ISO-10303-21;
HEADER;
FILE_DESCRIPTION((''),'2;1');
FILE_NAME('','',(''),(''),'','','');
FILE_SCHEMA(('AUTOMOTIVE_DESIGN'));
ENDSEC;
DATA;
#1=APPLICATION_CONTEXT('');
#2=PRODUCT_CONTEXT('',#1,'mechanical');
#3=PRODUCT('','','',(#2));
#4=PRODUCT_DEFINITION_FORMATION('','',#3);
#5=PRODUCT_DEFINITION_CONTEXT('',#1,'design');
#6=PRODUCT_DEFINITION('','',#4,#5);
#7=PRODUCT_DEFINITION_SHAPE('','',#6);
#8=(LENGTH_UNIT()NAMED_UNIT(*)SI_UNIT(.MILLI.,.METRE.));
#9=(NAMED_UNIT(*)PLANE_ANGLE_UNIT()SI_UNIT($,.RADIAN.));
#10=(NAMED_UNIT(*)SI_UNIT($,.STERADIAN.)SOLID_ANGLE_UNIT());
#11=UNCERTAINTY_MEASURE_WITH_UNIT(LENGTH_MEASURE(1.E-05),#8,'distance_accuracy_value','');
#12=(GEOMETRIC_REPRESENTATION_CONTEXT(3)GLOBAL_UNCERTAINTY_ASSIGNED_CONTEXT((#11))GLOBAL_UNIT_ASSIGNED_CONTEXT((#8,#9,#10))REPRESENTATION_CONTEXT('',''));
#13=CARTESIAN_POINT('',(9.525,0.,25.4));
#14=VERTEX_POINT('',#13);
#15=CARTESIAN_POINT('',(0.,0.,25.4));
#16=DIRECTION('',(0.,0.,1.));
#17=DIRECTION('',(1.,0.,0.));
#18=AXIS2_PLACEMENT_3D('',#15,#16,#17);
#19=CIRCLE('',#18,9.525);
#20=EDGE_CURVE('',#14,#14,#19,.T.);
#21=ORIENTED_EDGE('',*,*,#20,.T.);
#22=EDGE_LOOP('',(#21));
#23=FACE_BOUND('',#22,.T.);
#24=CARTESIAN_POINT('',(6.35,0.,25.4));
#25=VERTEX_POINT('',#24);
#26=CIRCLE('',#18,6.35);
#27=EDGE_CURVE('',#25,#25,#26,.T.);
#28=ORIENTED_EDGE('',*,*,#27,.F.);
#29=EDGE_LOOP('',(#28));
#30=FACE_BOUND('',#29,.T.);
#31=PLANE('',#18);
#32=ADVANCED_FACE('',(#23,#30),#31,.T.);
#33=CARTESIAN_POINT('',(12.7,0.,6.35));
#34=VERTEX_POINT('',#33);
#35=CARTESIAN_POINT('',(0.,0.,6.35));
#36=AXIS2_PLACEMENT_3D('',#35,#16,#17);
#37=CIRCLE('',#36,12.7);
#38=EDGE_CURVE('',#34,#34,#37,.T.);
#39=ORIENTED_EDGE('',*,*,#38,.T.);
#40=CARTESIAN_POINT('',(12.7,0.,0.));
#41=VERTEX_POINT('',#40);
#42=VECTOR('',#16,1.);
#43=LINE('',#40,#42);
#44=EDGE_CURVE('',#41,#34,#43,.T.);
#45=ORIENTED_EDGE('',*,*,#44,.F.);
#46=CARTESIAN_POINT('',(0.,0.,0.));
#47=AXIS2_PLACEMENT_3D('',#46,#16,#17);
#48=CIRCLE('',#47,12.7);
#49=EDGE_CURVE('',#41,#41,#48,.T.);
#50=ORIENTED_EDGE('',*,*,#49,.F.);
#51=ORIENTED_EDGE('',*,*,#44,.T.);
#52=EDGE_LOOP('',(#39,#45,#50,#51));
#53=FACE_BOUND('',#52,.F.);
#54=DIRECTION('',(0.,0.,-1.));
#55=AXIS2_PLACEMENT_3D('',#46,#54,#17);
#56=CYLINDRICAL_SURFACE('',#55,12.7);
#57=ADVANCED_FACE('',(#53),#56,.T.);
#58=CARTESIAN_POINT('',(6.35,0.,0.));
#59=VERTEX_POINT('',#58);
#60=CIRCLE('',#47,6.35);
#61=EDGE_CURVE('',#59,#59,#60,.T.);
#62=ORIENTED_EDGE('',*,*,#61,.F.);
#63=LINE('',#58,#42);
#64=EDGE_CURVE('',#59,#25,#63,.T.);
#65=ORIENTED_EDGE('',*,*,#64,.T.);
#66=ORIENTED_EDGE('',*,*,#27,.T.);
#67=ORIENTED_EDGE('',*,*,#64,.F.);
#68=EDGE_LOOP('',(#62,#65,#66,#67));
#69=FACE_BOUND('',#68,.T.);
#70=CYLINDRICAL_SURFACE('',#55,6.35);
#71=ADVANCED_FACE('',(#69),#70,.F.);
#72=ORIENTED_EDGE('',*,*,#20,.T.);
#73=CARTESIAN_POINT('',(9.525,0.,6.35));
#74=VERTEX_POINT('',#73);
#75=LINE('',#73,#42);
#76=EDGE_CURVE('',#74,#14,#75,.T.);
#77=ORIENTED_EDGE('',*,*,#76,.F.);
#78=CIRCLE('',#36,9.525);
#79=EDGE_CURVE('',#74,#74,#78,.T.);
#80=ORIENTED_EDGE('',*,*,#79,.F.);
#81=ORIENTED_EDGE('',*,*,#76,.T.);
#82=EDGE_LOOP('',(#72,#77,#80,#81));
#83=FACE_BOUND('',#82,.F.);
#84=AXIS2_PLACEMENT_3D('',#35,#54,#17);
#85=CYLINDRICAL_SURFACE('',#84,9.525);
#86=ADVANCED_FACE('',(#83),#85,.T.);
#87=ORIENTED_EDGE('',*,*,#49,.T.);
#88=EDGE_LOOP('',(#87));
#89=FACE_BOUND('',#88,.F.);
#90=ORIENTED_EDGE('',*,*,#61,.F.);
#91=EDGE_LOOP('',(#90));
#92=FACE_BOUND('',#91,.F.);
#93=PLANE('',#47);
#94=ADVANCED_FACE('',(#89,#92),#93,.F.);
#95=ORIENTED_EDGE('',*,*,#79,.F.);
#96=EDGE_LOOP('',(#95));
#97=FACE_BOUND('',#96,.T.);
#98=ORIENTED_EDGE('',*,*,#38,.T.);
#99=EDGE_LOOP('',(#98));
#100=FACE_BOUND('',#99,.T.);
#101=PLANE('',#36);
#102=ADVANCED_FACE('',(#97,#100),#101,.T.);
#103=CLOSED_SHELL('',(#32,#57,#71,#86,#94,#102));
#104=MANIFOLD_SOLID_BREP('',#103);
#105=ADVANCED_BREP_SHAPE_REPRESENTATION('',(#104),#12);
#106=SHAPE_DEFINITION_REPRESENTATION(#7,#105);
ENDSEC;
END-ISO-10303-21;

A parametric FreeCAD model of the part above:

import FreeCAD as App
import Part
import Sketcher
from FreeCAD import Vector
Q = App.Units.Quantity

doc = App.newDocument("Part")
params = doc.addObject("Spreadsheet::Sheet", "Params")
for row, (alias, value) in enumerate([
    ("sketch1_diameter", "1 in"),
    ("sketch1_diameter2", "0.5 in"),
    ("pad1_length", "0.25 in"),
    ("sketch2_diameter", "0.5 in"),
    ("sketch2_diameter2", "0.75 in"),
    ("pad2_length", "0.75 in"),
], start=1):
    params.set(f"A{row}", alias)
    params.set(f"B{row}", "=" + value)
    params.setAlias(f"B{row}", alias)

body = doc.addObject("PartDesign::Body", "Body")

# Sketch on XY plane
sketch1 = doc.addObject("Sketcher::SketchObject", "Sketch")
body.addObject(sketch1)
sketch1.AttachmentSupport = (doc.XY_Plane, [""])
sketch1.MapMode = "FlatFace"
sketch1.addGeometry(Part.Circle(Vector(0, 0, 0), Vector(0, 0, 1), 13), False)
sketch1.addGeometry(Part.Circle(Vector(0, 0, 0), Vector(0, 0, 1), 6), False)
sketch1.addConstraint(Sketcher.Constraint("Coincident", 0, 3, -1, 1))
sketch1.addConstraint(Sketcher.Constraint("Coincident", 1, 3, -1, 1))
sketch1.addConstraint(Sketcher.Constraint("Diameter", 0, Q("1 in")))
sketch1.addConstraint(Sketcher.Constraint("Diameter", 1, Q("0.5 in")))
sketch1.setExpression("Constraints[2]", "Params.sketch1_diameter")
sketch1.setExpression("Constraints[3]", "Params.sketch1_diameter2")
pad1 = doc.addObject("PartDesign::Pad", "Pad")
body.addObject(pad1)
pad1.Profile = sketch1
pad1.setExpression("Length", "Params.pad1_length")

# Sketch on XY plane
sketch2 = doc.addObject("Sketcher::SketchObject", "Sketch001")
body.addObject(sketch2)
sketch2.AttachmentSupport = (doc.XY_Plane, [""])
sketch2.MapMode = "FlatFace"
sketch2.AttachmentOffset = App.Placement(Vector(0, 0, 0.25 * 25.4), App.Rotation())
sketch2.addGeometry(Part.Circle(Vector(0, 0, 0), Vector(0, 0, 1), 10), False)
sketch2.addGeometry(Part.Circle(Vector(0, 0, 0), Vector(0, 0, 1), 6), False)
sketch2.addConstraint(Sketcher.Constraint("Coincident", 0, 3, -1, 1))
sketch2.addConstraint(Sketcher.Constraint("Coincident", 1, 3, -1, 1))
sketch2.addConstraint(Sketcher.Constraint("Diameter", 1, Q("0.5 in")))
sketch2.addConstraint(Sketcher.Constraint("Diameter", 0, Q("0.75 in")))
sketch2.setExpression("Constraints[2]", "Params.sketch2_diameter")
sketch2.setExpression("Constraints[3]", "Params.sketch2_diameter2")
pad2 = doc.addObject("PartDesign::Pad", "Pad001")
body.addObject(pad2)
pad2.Profile = sketch2
pad2.setExpression("Length", "Params.pad2_length")

doc.recompute()
